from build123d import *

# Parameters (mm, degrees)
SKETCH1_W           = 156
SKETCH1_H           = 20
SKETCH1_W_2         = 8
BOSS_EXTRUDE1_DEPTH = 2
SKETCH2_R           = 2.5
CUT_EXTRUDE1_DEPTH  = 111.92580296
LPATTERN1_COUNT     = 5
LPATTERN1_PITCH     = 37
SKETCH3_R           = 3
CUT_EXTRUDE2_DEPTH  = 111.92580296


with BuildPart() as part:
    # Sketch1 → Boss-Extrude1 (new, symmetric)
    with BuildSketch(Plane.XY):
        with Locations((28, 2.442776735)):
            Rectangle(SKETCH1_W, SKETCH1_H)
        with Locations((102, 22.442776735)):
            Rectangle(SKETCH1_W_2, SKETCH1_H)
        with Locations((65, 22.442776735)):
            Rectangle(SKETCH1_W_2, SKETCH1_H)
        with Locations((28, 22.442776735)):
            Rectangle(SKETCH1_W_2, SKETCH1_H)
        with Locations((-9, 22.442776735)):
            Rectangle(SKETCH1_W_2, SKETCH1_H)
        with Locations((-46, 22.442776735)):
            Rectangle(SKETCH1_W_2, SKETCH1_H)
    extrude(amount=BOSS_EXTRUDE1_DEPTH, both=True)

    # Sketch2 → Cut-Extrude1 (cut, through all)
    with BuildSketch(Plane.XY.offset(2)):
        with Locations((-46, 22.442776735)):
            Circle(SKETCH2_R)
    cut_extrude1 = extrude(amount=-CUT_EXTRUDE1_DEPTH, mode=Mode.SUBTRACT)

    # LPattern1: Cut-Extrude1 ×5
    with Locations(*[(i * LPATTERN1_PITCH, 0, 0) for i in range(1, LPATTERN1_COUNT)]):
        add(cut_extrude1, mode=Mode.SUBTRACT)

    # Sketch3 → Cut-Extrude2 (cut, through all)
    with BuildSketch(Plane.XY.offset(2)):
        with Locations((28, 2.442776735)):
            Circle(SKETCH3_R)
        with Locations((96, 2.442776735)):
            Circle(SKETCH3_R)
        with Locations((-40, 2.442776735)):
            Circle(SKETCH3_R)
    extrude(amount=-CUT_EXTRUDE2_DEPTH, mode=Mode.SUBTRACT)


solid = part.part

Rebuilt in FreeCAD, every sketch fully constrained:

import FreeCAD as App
import Part
import Sketcher

V = App.Vector


def add_polygon(sketch, points):
    """Adds a closed chain of lines whose ends are joined by coincident constraints."""
    first, n = sketch.GeometryCount, len(points)
    for a, b in zip(points, points[1:] + points[:1]):
        sketch.addGeometry(Part.LineSegment(App.Vector(*a, 0), App.Vector(*b, 0)), False)
    for i in range(n):
        sketch.addConstraint(Sketcher.Constraint("Coincident", first + i, 2, first + (i + 1) % n, 1))

doc = App.newDocument("Part")
params = doc.addObject("Spreadsheet::Sheet", "Params")
for row, (alias, value) in enumerate([
    ("sketch1_width", "156 mm"),
    ("sketch1_width2", "8 mm"),
    ("sketch1_height", "40 mm"),
    ("sketch1_height2", "20 mm"),
    ("pad1_length", "4 mm"),
    ("sketch2_diameter", "5 mm"),
    ("linearpattern_pitch", "37 mm"),
    ("sketch3_diameter", "6 mm"),
], start=1):
    params.set(f"A{row}", alias)
    params.set(f"B{row}", "=" + value)
    params.setAlias(f"B{row}", alias)

body = doc.addObject("PartDesign::Body", "Body")

sketch1 = body.newObject("Sketcher::SketchObject", "Sketch")
sketch1.AttachmentSupport = (doc.getObject("XY_Plane"), [""])
sketch1.MapMode = "FlatFace"
add_polygon(sketch1, [(-50, -8), (106, -8), (106, 32), (98, 32), (98, 12), (69, 12), (69, 32), (61, 32), (61, 12), (32, 12), (32, 32), (24, 32), (24, 12), (-5, 12), (-5, 32), (-13, 32), (-13, 12), (-42, 12), (-42, 32), (-50, 32)])
sketch1.addConstraint([
    Sketcher.Constraint("Horizontal", 0),
    Sketcher.Constraint("Vertical", 1),
    Sketcher.Constraint("Horizontal", 2),
    Sketcher.Constraint("Vertical", 3),
    Sketcher.Constraint("Horizontal", 4),
    Sketcher.Constraint("Vertical", 5),
    Sketcher.Constraint("Horizontal", 6),
    Sketcher.Constraint("Vertical", 7),
    Sketcher.Constraint("Horizontal", 8),
    Sketcher.Constraint("Vertical", 9),
    Sketcher.Constraint("Horizontal", 10),
    Sketcher.Constraint("Vertical", 11),
    Sketcher.Constraint("Horizontal", 12),
    Sketcher.Constraint("Vertical", 13),
    Sketcher.Constraint("Horizontal", 14),
    Sketcher.Constraint("Vertical", 15),
    Sketcher.Constraint("Horizontal", 16),
    Sketcher.Constraint("Vertical", 17),
    Sketcher.Constraint("Horizontal", 18),
    Sketcher.Constraint("Vertical", 19),
    Sketcher.Constraint("Horizontal", 2, 2, 5, 2),
    Sketcher.Constraint("Horizontal", 4, 2, 7, 2),
    Sketcher.Constraint("Horizontal", 6, 2, 9, 2),
    Sketcher.Constraint("Horizontal", 8, 2, 11, 2),
    Sketcher.Constraint("Horizontal", 10, 2, 13, 2),
    Sketcher.Constraint("Horizontal", 12, 2, 15, 2),
    Sketcher.Constraint("Horizontal", 14, 2, 17, 2),
    Sketcher.Constraint("Equal", 2, 6),
    Sketcher.Constraint("Equal", 4, 8),
    Sketcher.Constraint("Equal", 6, 10),
    Sketcher.Constraint("Equal", 8, 12),
    Sketcher.Constraint("Equal", 10, 14),
    Sketcher.Constraint("Equal", 12, 16),
    Sketcher.Constraint("Equal", 14, 18),
    Sketcher.Constraint("DistanceX", 0, 1, 0, 2, 156.0),
    Sketcher.Constraint("DistanceX", 2, 2, 2, 1, 8.0),
    Sketcher.Constraint("DistanceY", 1, 1, 1, 2, 40.0),
    Sketcher.Constraint("DistanceY", 3, 2, 3, 1, 20.0),
    Sketcher.Constraint("DistanceX", -1, 1, 0, 2, 106.0),
    Sketcher.Constraint("DistanceY", 0, 2, -1, 1, 7.557223),
])
sketch1.setExpression("Constraints[54]", "Params.sketch1_width")
sketch1.setExpression("Constraints[55]", "Params.sketch1_width2")
sketch1.setExpression("Constraints[56]", "Params.sketch1_height")
sketch1.setExpression("Constraints[57]", "Params.sketch1_height2")
pad1 = body.newObject("PartDesign::Pad", "Pad")
pad1.Profile = sketch1
pad1.setExpression("Length", "Params.pad1_length")
pad1.Midplane = True

sketch2 = body.newObject("Sketcher::SketchObject", "Sketch001")
sketch2.AttachmentSupport = (doc.getObject("XY_Plane"), [""])
sketch2.MapMode = "FlatFace"
sketch2.AttachmentOffset = App.Placement(V(0, 0, 2), App.Rotation())
sketch2.addGeometry(Part.Circle(V(-46, 22.4, 0), V(0, 0, 1), 2.5), False)
sketch2.addConstraint([
    Sketcher.Constraint("Diameter", 0, 5.0),
    Sketcher.Constraint("DistanceX", 0, 3, -1, 1, 46.0),
    Sketcher.Constraint("DistanceY", -1, 1, 0, 3, 22.442777),
])
sketch2.setExpression("Constraints[0]", "Params.sketch2_diameter")
pocket1 = body.newObject("PartDesign::Pocket", "Pocket")
pocket1.Profile = sketch2
pocket1.Type = "ThroughAll"
doc.recompute()

linearpattern = body.newObject("PartDesign::LinearPattern", "LinearPattern")
linearpattern.Originals = [pocket1]
linearpattern.Direction = (doc.getObject("X_Axis"), [""])
linearpattern.Mode = "offset"
linearpattern.setExpression("Offset", "Params.linearpattern_pitch")
linearpattern.Occurrences = 5
body.Tip = linearpattern

sketch3 = body.newObject("Sketcher::SketchObject", "Sketch002")
sketch3.AttachmentSupport = (doc.getObject("XY_Plane"), [""])
sketch3.MapMode = "FlatFace"
sketch3.AttachmentOffset = App.Placement(V(0, 0, 2), App.Rotation())
sketch3.addGeometry([
    Part.Circle(V(28, 2.4, 0), V(0, 0, 1), 3),
    Part.Circle(V(96, 2.4, 0), V(0, 0, 1), 3),
    Part.Circle(V(-40, 2.4, 0), V(0, 0, 1), 3),
], False)
sketch3.addConstraint([
    Sketcher.Constraint("Equal", 0, 1),
    Sketcher.Constraint("Equal", 1, 2),
    Sketcher.Constraint("Horizontal", 0, 3, 1, 3),
    Sketcher.Constraint("Horizontal", 1, 3, 2, 3),
    Sketcher.Constraint("Diameter", 0, 6.0),
    Sketcher.Constraint("DistanceX", -1, 1, 0, 3, 28.0),
    Sketcher.Constraint("DistanceX", -1, 1, 1, 3, 96.0),
    Sketcher.Constraint("DistanceX", 2, 3, -1, 1, 40.0),
    Sketcher.Constraint("DistanceY", -1, 1, 0, 3, 2.442777),
])
sketch3.setExpression("Constraints[4]", "Params.sketch3_diameter")
pocket2 = body.newObject("PartDesign::Pocket", "Pocket001")
pocket2.Profile = sketch3
pocket2.Type = "ThroughAll"

doc.recompute()
